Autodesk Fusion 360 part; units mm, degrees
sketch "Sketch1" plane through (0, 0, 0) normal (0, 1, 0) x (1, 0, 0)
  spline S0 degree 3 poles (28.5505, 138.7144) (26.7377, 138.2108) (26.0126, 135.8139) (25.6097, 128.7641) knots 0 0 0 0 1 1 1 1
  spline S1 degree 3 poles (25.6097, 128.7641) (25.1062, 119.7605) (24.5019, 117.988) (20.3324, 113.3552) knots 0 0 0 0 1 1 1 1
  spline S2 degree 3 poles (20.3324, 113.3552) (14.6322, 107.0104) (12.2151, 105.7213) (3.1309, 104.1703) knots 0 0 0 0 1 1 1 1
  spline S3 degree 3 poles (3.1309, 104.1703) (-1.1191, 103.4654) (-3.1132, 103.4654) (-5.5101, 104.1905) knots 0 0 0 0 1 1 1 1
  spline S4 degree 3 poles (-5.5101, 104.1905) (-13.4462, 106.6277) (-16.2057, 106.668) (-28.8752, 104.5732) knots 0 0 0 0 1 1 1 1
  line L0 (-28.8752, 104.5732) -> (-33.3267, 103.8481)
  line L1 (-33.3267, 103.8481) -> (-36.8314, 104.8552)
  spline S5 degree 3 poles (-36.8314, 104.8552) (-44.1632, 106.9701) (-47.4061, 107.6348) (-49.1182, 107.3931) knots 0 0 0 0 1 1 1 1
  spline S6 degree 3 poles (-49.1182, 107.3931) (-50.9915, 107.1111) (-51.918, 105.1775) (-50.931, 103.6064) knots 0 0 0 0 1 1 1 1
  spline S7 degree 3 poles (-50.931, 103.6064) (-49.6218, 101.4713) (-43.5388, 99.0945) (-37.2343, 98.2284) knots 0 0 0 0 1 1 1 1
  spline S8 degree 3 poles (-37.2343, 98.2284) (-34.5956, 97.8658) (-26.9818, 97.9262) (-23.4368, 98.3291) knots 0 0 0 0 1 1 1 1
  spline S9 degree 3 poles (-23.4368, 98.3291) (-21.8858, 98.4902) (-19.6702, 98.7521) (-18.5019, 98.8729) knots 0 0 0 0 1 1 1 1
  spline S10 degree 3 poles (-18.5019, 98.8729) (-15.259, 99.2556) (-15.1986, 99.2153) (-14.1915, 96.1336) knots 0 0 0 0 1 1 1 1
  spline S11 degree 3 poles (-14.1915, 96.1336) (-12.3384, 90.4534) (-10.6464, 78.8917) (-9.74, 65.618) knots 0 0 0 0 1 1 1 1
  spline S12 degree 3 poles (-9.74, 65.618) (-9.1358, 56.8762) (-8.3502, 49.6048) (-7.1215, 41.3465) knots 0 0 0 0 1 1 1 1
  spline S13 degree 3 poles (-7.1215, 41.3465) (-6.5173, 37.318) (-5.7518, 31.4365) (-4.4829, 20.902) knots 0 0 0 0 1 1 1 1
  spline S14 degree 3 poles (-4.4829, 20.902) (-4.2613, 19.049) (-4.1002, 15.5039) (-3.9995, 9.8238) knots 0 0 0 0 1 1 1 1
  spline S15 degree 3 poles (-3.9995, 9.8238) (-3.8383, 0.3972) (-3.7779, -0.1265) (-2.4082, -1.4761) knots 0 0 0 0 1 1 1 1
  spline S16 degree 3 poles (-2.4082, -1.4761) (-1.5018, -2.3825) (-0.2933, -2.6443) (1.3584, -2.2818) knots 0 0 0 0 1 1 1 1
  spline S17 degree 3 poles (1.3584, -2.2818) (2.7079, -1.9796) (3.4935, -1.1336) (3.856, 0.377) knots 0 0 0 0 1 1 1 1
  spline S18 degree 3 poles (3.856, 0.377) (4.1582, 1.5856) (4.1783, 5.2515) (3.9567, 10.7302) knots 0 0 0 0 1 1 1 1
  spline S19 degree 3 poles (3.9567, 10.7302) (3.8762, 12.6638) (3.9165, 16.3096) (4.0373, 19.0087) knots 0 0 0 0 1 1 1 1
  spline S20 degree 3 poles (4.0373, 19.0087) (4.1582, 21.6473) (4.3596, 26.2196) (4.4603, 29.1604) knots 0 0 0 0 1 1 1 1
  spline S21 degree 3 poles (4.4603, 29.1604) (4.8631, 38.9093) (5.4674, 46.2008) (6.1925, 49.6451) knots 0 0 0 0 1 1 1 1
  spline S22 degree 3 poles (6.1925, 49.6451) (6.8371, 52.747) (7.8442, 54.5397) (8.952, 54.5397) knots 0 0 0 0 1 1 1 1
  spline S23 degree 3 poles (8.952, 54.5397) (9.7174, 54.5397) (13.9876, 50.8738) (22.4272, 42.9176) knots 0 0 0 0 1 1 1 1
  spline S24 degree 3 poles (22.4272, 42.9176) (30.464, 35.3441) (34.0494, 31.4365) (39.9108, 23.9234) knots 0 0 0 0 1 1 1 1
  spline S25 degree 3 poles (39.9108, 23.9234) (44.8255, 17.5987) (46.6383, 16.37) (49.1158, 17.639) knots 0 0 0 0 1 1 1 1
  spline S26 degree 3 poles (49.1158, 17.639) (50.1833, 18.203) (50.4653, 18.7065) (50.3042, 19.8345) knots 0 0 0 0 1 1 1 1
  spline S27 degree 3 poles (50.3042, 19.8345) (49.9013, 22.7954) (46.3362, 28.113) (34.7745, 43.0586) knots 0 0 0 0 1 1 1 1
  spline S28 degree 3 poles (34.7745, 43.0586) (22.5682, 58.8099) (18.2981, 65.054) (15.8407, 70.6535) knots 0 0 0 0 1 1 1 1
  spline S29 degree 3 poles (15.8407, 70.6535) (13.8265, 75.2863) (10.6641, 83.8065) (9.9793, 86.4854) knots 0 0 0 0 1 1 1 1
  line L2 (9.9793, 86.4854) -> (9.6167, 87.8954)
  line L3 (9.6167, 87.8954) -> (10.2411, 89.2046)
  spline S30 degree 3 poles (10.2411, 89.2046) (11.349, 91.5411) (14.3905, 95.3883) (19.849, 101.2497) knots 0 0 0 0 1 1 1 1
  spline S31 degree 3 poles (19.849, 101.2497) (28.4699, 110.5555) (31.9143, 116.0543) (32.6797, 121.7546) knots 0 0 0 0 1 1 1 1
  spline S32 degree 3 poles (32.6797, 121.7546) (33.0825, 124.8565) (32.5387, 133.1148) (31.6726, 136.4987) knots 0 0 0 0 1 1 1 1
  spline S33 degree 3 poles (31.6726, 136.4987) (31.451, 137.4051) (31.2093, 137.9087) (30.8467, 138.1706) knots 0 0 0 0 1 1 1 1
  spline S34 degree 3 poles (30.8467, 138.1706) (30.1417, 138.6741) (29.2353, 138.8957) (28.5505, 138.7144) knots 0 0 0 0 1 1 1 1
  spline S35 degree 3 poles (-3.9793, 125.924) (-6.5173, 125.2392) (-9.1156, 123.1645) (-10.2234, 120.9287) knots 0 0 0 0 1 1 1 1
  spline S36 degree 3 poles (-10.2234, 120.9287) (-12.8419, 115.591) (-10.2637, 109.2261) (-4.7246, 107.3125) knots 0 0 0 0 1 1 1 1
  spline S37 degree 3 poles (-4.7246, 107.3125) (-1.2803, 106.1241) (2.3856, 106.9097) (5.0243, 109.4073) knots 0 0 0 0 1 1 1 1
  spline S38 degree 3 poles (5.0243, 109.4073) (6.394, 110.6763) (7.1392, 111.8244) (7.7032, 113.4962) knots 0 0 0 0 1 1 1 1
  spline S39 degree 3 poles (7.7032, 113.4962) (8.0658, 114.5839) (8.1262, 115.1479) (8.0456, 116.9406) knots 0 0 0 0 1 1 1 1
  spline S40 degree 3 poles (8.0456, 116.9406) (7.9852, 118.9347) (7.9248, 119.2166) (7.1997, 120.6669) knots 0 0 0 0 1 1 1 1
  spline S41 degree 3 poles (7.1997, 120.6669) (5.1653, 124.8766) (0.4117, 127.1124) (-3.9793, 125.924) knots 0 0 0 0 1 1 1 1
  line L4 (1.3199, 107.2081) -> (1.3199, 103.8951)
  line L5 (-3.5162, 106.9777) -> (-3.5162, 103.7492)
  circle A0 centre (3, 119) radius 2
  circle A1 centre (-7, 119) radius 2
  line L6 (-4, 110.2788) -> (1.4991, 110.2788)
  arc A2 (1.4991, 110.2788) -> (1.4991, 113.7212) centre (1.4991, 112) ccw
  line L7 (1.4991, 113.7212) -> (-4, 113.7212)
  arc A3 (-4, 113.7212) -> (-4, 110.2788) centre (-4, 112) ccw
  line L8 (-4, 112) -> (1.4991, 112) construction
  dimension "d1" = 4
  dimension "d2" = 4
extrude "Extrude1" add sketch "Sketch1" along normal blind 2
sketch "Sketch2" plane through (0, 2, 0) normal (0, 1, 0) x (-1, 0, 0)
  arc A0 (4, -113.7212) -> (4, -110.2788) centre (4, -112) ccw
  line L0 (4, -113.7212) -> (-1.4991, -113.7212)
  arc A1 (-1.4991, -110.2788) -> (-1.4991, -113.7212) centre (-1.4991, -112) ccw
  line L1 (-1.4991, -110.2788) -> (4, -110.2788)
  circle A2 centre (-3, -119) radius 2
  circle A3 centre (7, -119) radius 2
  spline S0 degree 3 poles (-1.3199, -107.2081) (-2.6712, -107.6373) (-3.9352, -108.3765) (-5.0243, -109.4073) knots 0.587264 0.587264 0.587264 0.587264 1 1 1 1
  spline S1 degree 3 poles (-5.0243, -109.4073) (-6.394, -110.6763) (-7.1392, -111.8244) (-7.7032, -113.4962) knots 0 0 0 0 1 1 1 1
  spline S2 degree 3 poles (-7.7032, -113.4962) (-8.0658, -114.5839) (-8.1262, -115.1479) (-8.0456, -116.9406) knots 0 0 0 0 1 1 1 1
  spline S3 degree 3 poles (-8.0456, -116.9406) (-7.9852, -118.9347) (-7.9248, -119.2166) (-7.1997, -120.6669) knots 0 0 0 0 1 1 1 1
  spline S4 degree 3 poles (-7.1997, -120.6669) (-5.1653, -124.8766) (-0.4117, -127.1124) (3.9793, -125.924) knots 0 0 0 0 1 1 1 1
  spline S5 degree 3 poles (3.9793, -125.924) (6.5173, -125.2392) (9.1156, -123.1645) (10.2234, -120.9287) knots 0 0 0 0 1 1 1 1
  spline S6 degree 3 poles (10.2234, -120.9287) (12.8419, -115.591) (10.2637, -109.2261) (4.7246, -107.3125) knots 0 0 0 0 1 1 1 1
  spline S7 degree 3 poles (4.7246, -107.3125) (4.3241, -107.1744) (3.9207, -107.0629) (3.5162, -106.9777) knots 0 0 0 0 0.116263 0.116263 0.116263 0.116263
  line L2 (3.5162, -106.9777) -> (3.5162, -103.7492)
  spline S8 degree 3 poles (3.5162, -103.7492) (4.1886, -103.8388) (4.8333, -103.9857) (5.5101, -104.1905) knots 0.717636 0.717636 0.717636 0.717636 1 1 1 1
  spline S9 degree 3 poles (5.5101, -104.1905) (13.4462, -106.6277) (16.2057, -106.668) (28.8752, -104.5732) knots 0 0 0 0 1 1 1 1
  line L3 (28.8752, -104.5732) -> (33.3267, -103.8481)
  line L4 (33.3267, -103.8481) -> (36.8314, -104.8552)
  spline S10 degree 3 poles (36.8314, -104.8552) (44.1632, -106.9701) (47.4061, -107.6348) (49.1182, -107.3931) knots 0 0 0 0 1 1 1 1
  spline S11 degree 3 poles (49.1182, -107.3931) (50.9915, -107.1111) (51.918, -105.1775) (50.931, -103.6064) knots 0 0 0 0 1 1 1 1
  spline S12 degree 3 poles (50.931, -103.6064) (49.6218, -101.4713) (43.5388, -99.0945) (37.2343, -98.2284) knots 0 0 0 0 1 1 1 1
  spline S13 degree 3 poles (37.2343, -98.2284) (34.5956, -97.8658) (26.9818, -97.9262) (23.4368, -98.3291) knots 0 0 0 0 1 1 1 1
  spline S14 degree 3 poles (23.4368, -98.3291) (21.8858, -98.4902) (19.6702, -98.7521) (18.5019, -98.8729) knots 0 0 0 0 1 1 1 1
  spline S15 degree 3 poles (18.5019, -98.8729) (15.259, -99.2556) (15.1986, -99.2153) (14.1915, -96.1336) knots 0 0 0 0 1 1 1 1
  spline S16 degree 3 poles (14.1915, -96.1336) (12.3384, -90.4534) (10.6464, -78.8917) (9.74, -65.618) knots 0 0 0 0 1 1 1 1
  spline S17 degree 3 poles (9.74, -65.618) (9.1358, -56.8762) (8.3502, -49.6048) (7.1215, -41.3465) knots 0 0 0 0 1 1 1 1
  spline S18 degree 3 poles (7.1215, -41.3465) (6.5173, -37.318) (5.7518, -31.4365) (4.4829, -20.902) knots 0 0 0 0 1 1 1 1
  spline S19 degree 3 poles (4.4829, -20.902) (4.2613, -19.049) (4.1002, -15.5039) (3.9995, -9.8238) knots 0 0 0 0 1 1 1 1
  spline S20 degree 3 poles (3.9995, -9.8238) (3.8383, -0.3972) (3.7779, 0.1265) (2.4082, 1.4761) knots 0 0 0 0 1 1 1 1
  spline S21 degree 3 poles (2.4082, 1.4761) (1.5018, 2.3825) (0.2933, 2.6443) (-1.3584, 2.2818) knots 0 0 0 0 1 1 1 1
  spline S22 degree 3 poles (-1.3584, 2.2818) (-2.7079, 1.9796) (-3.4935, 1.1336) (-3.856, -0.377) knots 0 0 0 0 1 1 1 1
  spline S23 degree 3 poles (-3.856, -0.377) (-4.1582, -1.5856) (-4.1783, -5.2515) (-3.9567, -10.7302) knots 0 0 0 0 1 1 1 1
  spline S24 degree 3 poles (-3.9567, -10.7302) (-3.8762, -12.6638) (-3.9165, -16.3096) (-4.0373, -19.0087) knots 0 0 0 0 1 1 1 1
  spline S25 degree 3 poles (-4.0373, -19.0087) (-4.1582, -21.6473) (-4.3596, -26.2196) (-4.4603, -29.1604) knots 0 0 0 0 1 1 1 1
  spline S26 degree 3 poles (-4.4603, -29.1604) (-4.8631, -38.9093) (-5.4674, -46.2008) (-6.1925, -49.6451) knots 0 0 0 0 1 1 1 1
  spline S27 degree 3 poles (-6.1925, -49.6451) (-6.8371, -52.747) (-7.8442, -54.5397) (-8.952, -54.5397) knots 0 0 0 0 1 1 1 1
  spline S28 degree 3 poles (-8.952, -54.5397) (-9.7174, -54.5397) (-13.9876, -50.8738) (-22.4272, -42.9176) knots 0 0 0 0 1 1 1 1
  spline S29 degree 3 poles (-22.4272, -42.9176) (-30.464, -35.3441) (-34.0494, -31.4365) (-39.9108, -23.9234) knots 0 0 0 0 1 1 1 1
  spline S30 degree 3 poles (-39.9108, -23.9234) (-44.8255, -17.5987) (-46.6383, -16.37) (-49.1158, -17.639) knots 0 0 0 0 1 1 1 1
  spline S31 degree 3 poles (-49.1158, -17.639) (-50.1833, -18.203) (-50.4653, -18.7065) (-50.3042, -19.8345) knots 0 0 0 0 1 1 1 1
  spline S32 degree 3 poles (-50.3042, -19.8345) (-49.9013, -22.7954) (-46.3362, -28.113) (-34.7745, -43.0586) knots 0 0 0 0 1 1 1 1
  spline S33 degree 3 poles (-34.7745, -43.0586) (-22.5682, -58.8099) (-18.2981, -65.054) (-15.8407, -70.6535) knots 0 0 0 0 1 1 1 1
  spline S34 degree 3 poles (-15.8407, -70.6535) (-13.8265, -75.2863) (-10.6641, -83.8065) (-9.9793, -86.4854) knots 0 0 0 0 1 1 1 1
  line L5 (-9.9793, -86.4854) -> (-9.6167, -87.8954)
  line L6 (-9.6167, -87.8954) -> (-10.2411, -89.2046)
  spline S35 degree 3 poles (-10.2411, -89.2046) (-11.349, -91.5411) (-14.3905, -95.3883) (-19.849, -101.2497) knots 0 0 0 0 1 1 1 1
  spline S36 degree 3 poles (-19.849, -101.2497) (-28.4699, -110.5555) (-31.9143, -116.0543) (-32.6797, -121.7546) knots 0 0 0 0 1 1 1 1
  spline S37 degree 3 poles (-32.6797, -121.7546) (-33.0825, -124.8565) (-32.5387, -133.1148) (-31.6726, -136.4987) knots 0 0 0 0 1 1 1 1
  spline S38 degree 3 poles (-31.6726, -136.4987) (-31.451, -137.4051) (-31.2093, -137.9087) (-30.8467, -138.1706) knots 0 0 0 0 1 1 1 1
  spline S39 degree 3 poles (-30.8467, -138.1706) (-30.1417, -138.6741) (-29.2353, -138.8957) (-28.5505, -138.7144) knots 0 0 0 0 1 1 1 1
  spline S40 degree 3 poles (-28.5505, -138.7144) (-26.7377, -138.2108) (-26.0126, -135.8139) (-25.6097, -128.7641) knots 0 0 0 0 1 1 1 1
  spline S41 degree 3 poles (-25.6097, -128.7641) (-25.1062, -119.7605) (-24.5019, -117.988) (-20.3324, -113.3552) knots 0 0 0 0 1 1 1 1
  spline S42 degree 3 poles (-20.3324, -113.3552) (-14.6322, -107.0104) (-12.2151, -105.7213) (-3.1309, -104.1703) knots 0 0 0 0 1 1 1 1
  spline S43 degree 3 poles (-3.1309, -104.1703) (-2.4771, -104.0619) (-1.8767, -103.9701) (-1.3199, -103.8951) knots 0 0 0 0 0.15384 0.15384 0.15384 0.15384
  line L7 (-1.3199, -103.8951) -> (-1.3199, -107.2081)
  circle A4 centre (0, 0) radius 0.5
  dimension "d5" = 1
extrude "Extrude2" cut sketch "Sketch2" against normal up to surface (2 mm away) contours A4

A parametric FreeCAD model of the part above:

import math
import FreeCAD as App
import Part
import Sketcher

doc = App.newDocument("Part")
body = doc.addObject("PartDesign::Body", "Body")

# Sketch on XZ plane
sketch1 = body.newObject("Sketcher::SketchObject", "Sketch")
sketch1.AttachmentSupport = (doc.getObject("XZ_Plane"), [""])
sketch1.MapMode = "FlatFace"
sketch1.addGeometry(Part.BSplineCurve([App.Vector(30.8467, -138.1706, 0), App.Vector(30.1417, -138.6741, 0), App.Vector(29.2353, -138.8957, 0), App.Vector(28.5505, -138.7144, 0)], [4, 4], [0, 1], False, 3, [1, 1, 1, 1], False), False)
sketch1.addGeometry(Part.BSplineCurve([App.Vector(28.5505, -138.7144, 0), App.Vector(26.7377, -138.2108, 0), App.Vector(26.0126, -135.8139, 0), App.Vector(25.6097, -128.7641, 0)], [4, 4], [0, 1], False, 3, [1, 1, 1, 1], False), False)
sketch1.addGeometry(Part.BSplineCurve([App.Vector(25.6097, -128.7641, 0), App.Vector(25.1062, -119.7605, 0), App.Vector(24.5019, -117.988, 0), App.Vector(20.3324, -113.3552, 0)], [4, 4], [0, 1], False, 3, [1, 1, 1, 1], False), False)
sketch1.addGeometry(Part.BSplineCurve([App.Vector(20.3324, -113.3552, 0), App.Vector(14.6322, -107.0104, 0), App.Vector(12.2151, -105.7213, 0), App.Vector(3.1309, -104.1703, 0)], [4, 4], [0, 1], False, 3, [1, 1, 1, 1], False), False)
sketch1.addGeometry(Part.BSplineCurve([App.Vector(3.1309, -104.1703, 0), App.Vector(2.477069, -104.061856, 0), App.Vector(1.876629, -103.970096, 0), App.Vector(1.319901, -103.895092, 0)], [4, 4], [0, 0.153842613], False, 3, [1, 1, 1, 1], False), False)
sketch1.addGeometry(Part.LineSegment(App.Vector(1.3199, -103.8951, 0), App.Vector(1.3199, -107.2081, 0)), False)
sketch1.addGeometry(Part.BSplineCurve([App.Vector(1.3199, -107.208099, 0), App.Vector(2.671149, -107.637246, 0), App.Vector(3.935216, -108.376453, 0), App.Vector(5.0243, -109.4073, 0)], [4, 4], [0.587265051, 1], False, 3, [1, 1, 1, 1], False), False)
sketch1.addGeometry(Part.BSplineCurve([App.Vector(5.0243, -109.4073, 0), App.Vector(6.394, -110.6763, 0), App.Vector(7.1392, -111.8244, 0), App.Vector(7.7032, -113.4962, 0)], [4, 4], [0, 1], False, 3, [1, 1, 1, 1], False), False)
sketch1.addGeometry(Part.BSplineCurve([App.Vector(7.7032, -113.4962, 0), App.Vector(8.0658, -114.5839, 0), App.Vector(8.1262, -115.1479, 0), App.Vector(8.0456, -116.9406, 0)], [4, 4], [0, 1], False, 3, [1, 1, 1, 1], False), False)
sketch1.addGeometry(Part.BSplineCurve([App.Vector(8.0456, -116.9406, 0), App.Vector(7.9852, -118.9347, 0), App.Vector(7.9248, -119.2166, 0), App.Vector(7.1997, -120.6669, 0)], [4, 4], [0, 1], False, 3, [1, 1, 1, 1], False), False)
sketch1.addGeometry(Part.BSplineCurve([App.Vector(7.1997, -120.6669, 0), App.Vector(5.1653, -124.8766, 0), App.Vector(0.4117, -127.1124, 0), App.Vector(-3.9793, -125.924, 0)], [4, 4], [0, 1], False, 3, [1, 1, 1, 1], False), False)
sketch1.addGeometry(Part.BSplineCurve([App.Vector(-3.9793, -125.924, 0), App.Vector(-6.5173, -125.2392, 0), App.Vector(-9.1156, -123.1645, 0), App.Vector(-10.2234, -120.9287, 0)], [4, 4], [0, 1], False, 3, [1, 1, 1, 1], False), False)
sketch1.addGeometry(Part.BSplineCurve([App.Vector(-10.2234, -120.9287, 0), App.Vector(-12.8419, -115.591, 0), App.Vector(-10.2637, -109.2261, 0), App.Vector(-4.7246, -107.3125, 0)], [4, 4], [0, 1], False, 3, [1, 1, 1, 1], False), False)
sketch1.addGeometry(Part.BSplineCurve([App.Vector(-4.7246, -107.3125, 0), App.Vector(-4.324146, -107.17433, 0), App.Vector(-3.920697, -107.062844, 0), App.Vector(-3.516215, -106.97763, 0)], [4, 4], [0, 0.116265647], False, 3, [1, 1, 1, 1], False), False)
sketch1.addGeometry(Part.LineSegment(App.Vector(-3.5162, -106.9777, 0), App.Vector(-3.5162, -103.7492, 0)), False)
sketch1.addGeometry(Part.BSplineCurve([App.Vector(-3.516193, -103.749254, 0), App.Vector(-4.188617, -103.838827, 0), App.Vector(-4.833301, -103.985758, 0), App.Vector(-5.5101, -104.1905, 0)], [4, 4], [0.717635603, 1], False, 3, [1, 1, 1, 1], False), False)
sketch1.addGeometry(Part.BSplineCurve([App.Vector(-5.5101, -104.1905, 0), App.Vector(-13.4462, -106.6277, 0), App.Vector(-16.2057, -106.668, 0), App.Vector(-28.8752, -104.5732, 0)], [4, 4], [0, 1], False, 3, [1, 1, 1, 1], False), False)
sketch1.addGeometry(Part.LineSegment(App.Vector(-28.8752, -104.5732, 0), App.Vector(-33.3267, -103.8481, 0)), False)
sketch1.addGeometry(Part.LineSegment(App.Vector(-33.3267, -103.8481, 0), App.Vector(-36.8314, -104.8552, 0)), False)
sketch1.addGeometry(Part.BSplineCurve([App.Vector(-36.8314, -104.8552, 0), App.Vector(-44.1632, -106.9701, 0), App.Vector(-47.4061, -107.6348, 0), App.Vector(-49.1182, -107.3931, 0)], [4, 4], [0, 1], False, 3, [1, 1, 1, 1], False), False)
sketch1.addGeometry(Part.BSplineCurve([App.Vector(-49.1182, -107.3931, 0), App.Vector(-50.9915, -107.1111, 0), App.Vector(-51.918, -105.1775, 0), App.Vector(-50.931, -103.6064, 0)], [4, 4], [0, 1], False, 3, [1, 1, 1, 1], False), False)
sketch1.addGeometry(Part.BSplineCurve([App.Vector(-50.931, -103.6064, 0), App.Vector(-49.6218, -101.4713, 0), App.Vector(-43.5388, -99.0945, 0), App.Vector(-37.2343, -98.2284, 0)], [4, 4], [0, 1], False, 3, [1, 1, 1, 1], False), False)
sketch1.addGeometry(Part.BSplineCurve([App.Vector(-37.2343, -98.2284, 0), App.Vector(-34.5956, -97.8658, 0), App.Vector(-26.9818, -97.9262, 0), App.Vector(-23.4368, -98.3291, 0)], [4, 4], [0, 1], False, 3, [1, 1, 1, 1], False), False)
sketch1.addGeometry(Part.BSplineCurve([App.Vector(-23.4368, -98.3291, 0), App.Vector(-21.8858, -98.4902, 0), App.Vector(-19.6702, -98.7521, 0), App.Vector(-18.5019, -98.8729, 0)], [4, 4], [0, 1], False, 3, [1, 1, 1, 1], False), False)
sketch1.addGeometry(Part.BSplineCurve([App.Vector(-18.5019, -98.8729, 0), App.Vector(-15.259, -99.2556, 0), App.Vector(-15.1986, -99.2153, 0), App.Vector(-14.1915, -96.1336, 0)], [4, 4], [0, 1], False, 3, [1, 1, 1, 1], False), False)
sketch1.addGeometry(Part.BSplineCurve([App.Vector(-14.1915, -96.1336, 0), App.Vector(-12.3384, -90.4534, 0), App.Vector(-10.6464, -78.8917, 0), App.Vector(-9.74, -65.618, 0)], [4, 4], [0, 1], False, 3, [1, 1, 1, 1], False), False)
sketch1.addGeometry(Part.BSplineCurve([App.Vector(-9.74, -65.618, 0), App.Vector(-9.1358, -56.8762, 0), App.Vector(-8.3502, -49.6048, 0), App.Vector(-7.1215, -41.3465, 0)], [4, 4], [0, 1], False, 3, [1, 1, 1, 1], False), False)
sketch1.addGeometry(Part.BSplineCurve([App.Vector(-7.1215, -41.3465, 0), App.Vector(-6.5173, -37.318, 0), App.Vector(-5.7518, -31.4365, 0), App.Vector(-4.4829, -20.902, 0)], [4, 4], [0, 1], False, 3, [1, 1, 1, 1], False), False)
sketch1.addGeometry(Part.BSplineCurve([App.Vector(-4.4829, -20.902, 0), App.Vector(-4.2613, -19.049, 0), App.Vector(-4.1002, -15.5039, 0), App.Vector(-3.9995, -9.8238, 0)], [4, 4], [0, 1], False, 3, [1, 1, 1, 1], False), False)
sketch1.addGeometry(Part.BSplineCurve([App.Vector(-3.9995, -9.8238, 0), App.Vector(-3.8383, -0.3972, 0), App.Vector(-3.7779, 0.1265, 0), App.Vector(-2.4082, 1.4761, 0)], [4, 4], [0, 1], False, 3, [1, 1, 1, 1], False), False)
sketch1.addGeometry(Part.BSplineCurve([App.Vector(-2.4082, 1.4761, 0), App.Vector(-1.5018, 2.3825, 0), App.Vector(-0.2933, 2.6443, 0), App.Vector(1.3584, 2.2818, 0)], [4, 4], [0, 1], False, 3, [1, 1, 1, 1], False), False)
sketch1.addGeometry(Part.BSplineCurve([App.Vector(1.3584, 2.2818, 0), App.Vector(2.7079, 1.9796, 0), App.Vector(3.4935, 1.1336, 0), App.Vector(3.856, -0.377, 0)], [4, 4], [0, 1], False, 3, [1, 1, 1, 1], False), False)
sketch1.addGeometry(Part.BSplineCurve([App.Vector(3.856, -0.377, 0), App.Vector(4.1582, -1.5856, 0), App.Vector(4.1783, -5.2515, 0), App.Vector(3.9567, -10.7302, 0)], [4, 4], [0, 1], False, 3, [1, 1, 1, 1], False), False)
sketch1.addGeometry(Part.BSplineCurve([App.Vector(3.9567, -10.7302, 0), App.Vector(3.8762, -12.6638, 0), App.Vector(3.9165, -16.3096, 0), App.Vector(4.0373, -19.0087, 0)], [4, 4], [0, 1], False, 3, [1, 1, 1, 1], False), False)
sketch1.addGeometry(Part.BSplineCurve([App.Vector(4.0373, -19.0087, 0), App.Vector(4.1582, -21.6473, 0), App.Vector(4.3596, -26.2196, 0), App.Vector(4.4603, -29.1604, 0)], [4, 4], [0, 1], False, 3, [1, 1, 1, 1], False), False)
sketch1.addGeometry(Part.BSplineCurve([App.Vector(4.4603, -29.1604, 0), App.Vector(4.8631, -38.9093, 0), App.Vector(5.4674, -46.2008, 0), App.Vector(6.1925, -49.6451, 0)], [4, 4], [0, 1], False, 3, [1, 1, 1, 1], False), False)
sketch1.addGeometry(Part.BSplineCurve([App.Vector(6.1925, -49.6451, 0), App.Vector(6.8371, -52.747, 0), App.Vector(7.8442, -54.5397, 0), App.Vector(8.952, -54.5397, 0)], [4, 4], [0, 1], False, 3, [1, 1, 1, 1], False), False)
sketch1.addGeometry(Part.BSplineCurve([App.Vector(8.952, -54.5397, 0), App.Vector(9.7174, -54.5397, 0), App.Vector(13.9876, -50.8738, 0), App.Vector(22.4272, -42.9176, 0)], [4, 4], [0, 1], False, 3, [1, 1, 1, 1], False), False)
sketch1.addGeometry(Part.BSplineCurve([App.Vector(22.4272, -42.9176, 0), App.Vector(30.464, -35.3441, 0), App.Vector(34.0494, -31.4365, 0), App.Vector(39.9108, -23.9234, 0)], [4, 4], [0, 1], False, 3, [1, 1, 1, 1], False), False)
sketch1.addGeometry(Part.BSplineCurve([App.Vector(39.9108, -23.9234, 0), App.Vector(44.8255, -17.5987, 0), App.Vector(46.6383, -16.37, 0), App.Vector(49.1158, -17.639, 0)], [4, 4], [0, 1], False, 3, [1, 1, 1, 1], False), False)
sketch1.addGeometry(Part.BSplineCurve([App.Vector(49.1158, -17.639, 0), App.Vector(50.1833, -18.203, 0), App.Vector(50.4653, -18.7065, 0), App.Vector(50.3042, -19.8345, 0)], [4, 4], [0, 1], False, 3, [1, 1, 1, 1], False), False)
sketch1.addGeometry(Part.BSplineCurve([App.Vector(50.3042, -19.8345, 0), App.Vector(49.9013, -22.7954, 0), App.Vector(46.3362, -28.113, 0), App.Vector(34.7745, -43.0586, 0)], [4, 4], [0, 1], False, 3, [1, 1, 1, 1], False), False)
sketch1.addGeometry(Part.BSplineCurve([App.Vector(34.7745, -43.0586, 0), App.Vector(22.5682, -58.8099, 0), App.Vector(18.2981, -65.054, 0), App.Vector(15.8407, -70.6535, 0)], [4, 4], [0, 1], False, 3, [1, 1, 1, 1], False), False)
sketch1.addGeometry(Part.BSplineCurve([App.Vector(15.8407, -70.6535, 0), App.Vector(13.8265, -75.2863, 0), App.Vector(10.6641, -83.8065, 0), App.Vector(9.9793, -86.4854, 0)], [4, 4], [0, 1], False, 3, [1, 1, 1, 1], False), False)
sketch1.addGeometry(Part.LineSegment(App.Vector(9.9793, -86.4854, 0), App.Vector(9.6167, -87.8954, 0)), False)
sketch1.addGeometry(Part.LineSegment(App.Vector(9.6167, -87.8954, 0), App.Vector(10.2411, -89.2046, 0)), False)
sketch1.addGeometry(Part.BSplineCurve([App.Vector(10.2411, -89.2046, 0), App.Vector(11.349, -91.5411, 0), App.Vector(14.3905, -95.3883, 0), App.Vector(19.849, -101.2497, 0)], [4, 4], [0, 1], False, 3, [1, 1, 1, 1], False), False)
sketch1.addGeometry(Part.BSplineCurve([App.Vector(19.849, -101.2497, 0), App.Vector(28.4699, -110.5555, 0), App.Vector(31.9143, -116.0543, 0), App.Vector(32.6797, -121.7546, 0)], [4, 4], [0, 1], False, 3, [1, 1, 1, 1], False), False)
sketch1.addGeometry(Part.BSplineCurve([App.Vector(32.6797, -121.7546, 0), App.Vector(33.0825, -124.8565, 0), App.Vector(32.5387, -133.1148, 0), App.Vector(31.6726, -136.4987, 0)], [4, 4], [0, 1], False, 3, [1, 1, 1, 1], False), False)
sketch1.addGeometry(Part.BSplineCurve([App.Vector(31.6726, -136.4987, 0), App.Vector(31.451, -137.4051, 0), App.Vector(31.2093, -137.9087, 0), App.Vector(30.8467, -138.1706, 0)], [4, 4], [0, 1], False, 3, [1, 1, 1, 1], False), False)
sketch1.addGeometry(Part.Circle(App.Vector(3, -119, 0), App.Vector(0, 0, 1), 2), False)
sketch1.addGeometry(Part.LineSegment(App.Vector(1.4991, -110.2788, 0), App.Vector(-4, -110.2788, 0)), False)
sketch1.addGeometry(Part.ArcOfCircle(Part.Circle(App.Vector(-4, -112, 0), App.Vector(0, 0, 1), 1.7212), math.radians(90), math.radians(270)), False)
sketch1.addGeometry(Part.LineSegment(App.Vector(-4, -113.7212, 0), App.Vector(1.4991, -113.7212, 0)), False)
sketch1.addGeometry(Part.ArcOfCircle(Part.Circle(App.Vector(1.4991, -112, 0), App.Vector(0, 0, 1), 1.7212), math.radians(-90), math.radians(90)), False)
sketch1.addGeometry(Part.Circle(App.Vector(-7, -119, 0), App.Vector(0, 0, 1), 2), False)
sketch1.addConstraint(Sketcher.Constraint("Block", 0))
sketch1.addConstraint(Sketcher.Constraint("Block", 1))
sketch1.addConstraint(Sketcher.Constraint("Block", 2))
sketch1.addConstraint(Sketcher.Constraint("Block", 3))
sketch1.addConstraint(Sketcher.Constraint("Block", 4))
sketch1.addConstraint(Sketcher.Constraint("Block", 6))
sketch1.addConstraint(Sketcher.Constraint("Block", 7))
sketch1.addConstraint(Sketcher.Constraint("Block", 8))
sketch1.addConstraint(Sketcher.Constraint("Block", 9))
sketch1.addConstraint(Sketcher.Constraint("Block", 10))
sketch1.addConstraint(Sketcher.Constraint("Block", 11))
sketch1.addConstraint(Sketcher.Constraint("Block", 12))
sketch1.addConstraint(Sketcher.Constraint("Block", 13))
sketch1.addConstraint(Sketcher.Constraint("Block", 15))
sketch1.addConstraint(Sketcher.Constraint("Block", 16))
sketch1.addConstraint(Sketcher.Constraint("Block", 19))
sketch1.addConstraint(Sketcher.Constraint("Block", 20))
sketch1.addConstraint(Sketcher.Constraint("Block", 21))
sketch1.addConstraint(Sketcher.Constraint("Block", 22))
sketch1.addConstraint(Sketcher.Constraint("Block", 23))
sketch1.addConstraint(Sketcher.Constraint("Block", 24))
sketch1.addConstraint(Sketcher.Constraint("Block", 25))
sketch1.addConstraint(Sketcher.Constraint("Block", 26))
sketch1.addConstraint(Sketcher.Constraint("Block", 27))
sketch1.addConstraint(Sketcher.Constraint("Block", 28))
sketch1.addConstraint(Sketcher.Constraint("Block", 29))
sketch1.addConstraint(Sketcher.Constraint("Block", 30))
sketch1.addConstraint(Sketcher.Constraint("Block", 31))
sketch1.addConstraint(Sketcher.Constraint("Block", 32))
sketch1.addConstraint(Sketcher.Constraint("Block", 33))
sketch1.addConstraint(Sketcher.Constraint("Block", 34))
sketch1.addConstraint(Sketcher.Constraint("Block", 35))
sketch1.addConstraint(Sketcher.Constraint("Block", 36))
sketch1.addConstraint(Sketcher.Constraint("Block", 37))
sketch1.addConstraint(Sketcher.Constraint("Block", 38))
sketch1.addConstraint(Sketcher.Constraint("Block", 39))
sketch1.addConstraint(Sketcher.Constraint("Block", 40))
sketch1.addConstraint(Sketcher.Constraint("Block", 41))
sketch1.addConstraint(Sketcher.Constraint("Block", 42))
sketch1.addConstraint(Sketcher.Constraint("Block", 43))
sketch1.addConstraint(Sketcher.Constraint("Block", 46))
sketch1.addConstraint(Sketcher.Constraint("Block", 47))
sketch1.addConstraint(Sketcher.Constraint("Block", 48))
sketch1.addConstraint(Sketcher.Constraint("Block", 49))
sketch1.addConstraint(Sketcher.Constraint("Coincident", 4, 2, 5, 1))
sketch1.addConstraint(Sketcher.Constraint("Coincident", 5, 2, 6, 1))
sketch1.addConstraint(Sketcher.Constraint("Coincident", 13, 2, 14, 1))
sketch1.addConstraint(Sketcher.Constraint("Coincident", 14, 2, 15, 1))
sketch1.addConstraint(Sketcher.Constraint("Coincident", 16, 2, 17, 1))
sketch1.addConstraint(Sketcher.Constraint("Coincident", 17, 2, 18, 1))
sketch1.addConstraint(Sketcher.Constraint("Coincident", 18, 2, 19, 1))
sketch1.addConstraint(Sketcher.Constraint("Coincident", 43, 2, 44, 1))
sketch1.addConstraint(Sketcher.Constraint("Coincident", 44, 2, 45, 1))
sketch1.addConstraint(Sketcher.Constraint("Coincident", 45, 2, 46, 1))
sketch1.addConstraint(Sketcher.Constraint("Tangent", 51, 2, 52, 1))
sketch1.addConstraint(Sketcher.Constraint("Tangent", 52, 2, 53, 1))
sketch1.addConstraint(Sketcher.Constraint("Tangent", 53, 2, 54, 1))
sketch1.addConstraint(Sketcher.Constraint("Tangent", 54, 2, 51, 1))
sketch1.addConstraint(Sketcher.Constraint("Horizontal", 51))
sketch1.addConstraint(Sketcher.Constraint("Horizontal", 53))
sketch1.addConstraint(Sketcher.Constraint("Equal", 50, 55))
sketch1.addConstraint(Sketcher.Constraint("Horizontal", 50, 3, 55, 3))
sketch1.addConstraint(Sketcher.Constraint("Diameter", 50, 4.0))
sketch1.addConstraint(Sketcher.Constraint("DistanceX", 52, 3, -1, 1, 4.0))
sketch1.addConstraint(Sketcher.Constraint("DistanceX", -1, 1, 50, 3, 3.0))
sketch1.addConstraint(Sketcher.Constraint("DistanceY", 50, 3, -1, 1, 119.0))
sketch1.addConstraint(Sketcher.Constraint("DistanceY", 52, 3, -1, 1, 112.0))
sketch1.addConstraint(Sketcher.Constraint("DistanceX", 55, 3, -1, 1, 7.0))
sketch1.addConstraint(Sketcher.Constraint("Radius", 52, 1.7212))
sketch1.addConstraint(Sketcher.Constraint("DistanceX", 51, 2, 51, 1, 5.499))
sketch1.addConstraint(Sketcher.Constraint("DistanceY", 5, 2, 17, 2, 3.36))
sketch1.addConstraint(Sketcher.Constraint("DistanceX", 14, 2, 44, 2, 13.133))
sketch1.addConstraint(Sketcher.Constraint("Distance", 17, 4.5102))
sketch1.addConstraint(Sketcher.Constraint("Distance", 44, 1.4559))
pad1 = body.newObject("PartDesign::Pad", "Pad")
pad1.Profile = sketch1
pad1.Length = 2
pad1.Reversed = True

# Sketch on XZ plane
sketch2 = body.newObject("Sketcher::SketchObject", "Sketch001")
sketch2.AttachmentSupport = (doc.getObject("XZ_Plane"), [""])
sketch2.MapMode = "FlatFace"
sketch2.AttachmentOffset = App.Placement(App.Vector(0, 0, -2), App.Rotation())
sketch2.addGeometry(Part.Circle(App.Vector(0, 0, 0), App.Vector(0, 0, 1), 0.5), False)
sketch2.addConstraint(Sketcher.Constraint("Coincident", 0, 3, -1, 1))
sketch2.addConstraint(Sketcher.Constraint("Diameter", 0, 1.0))
pocket1 = body.newObject("PartDesign::Pocket", "Pocket")
pocket1.Profile = sketch2
pocket1.Length = 2
pocket1.Reversed = True

doc.recompute()
